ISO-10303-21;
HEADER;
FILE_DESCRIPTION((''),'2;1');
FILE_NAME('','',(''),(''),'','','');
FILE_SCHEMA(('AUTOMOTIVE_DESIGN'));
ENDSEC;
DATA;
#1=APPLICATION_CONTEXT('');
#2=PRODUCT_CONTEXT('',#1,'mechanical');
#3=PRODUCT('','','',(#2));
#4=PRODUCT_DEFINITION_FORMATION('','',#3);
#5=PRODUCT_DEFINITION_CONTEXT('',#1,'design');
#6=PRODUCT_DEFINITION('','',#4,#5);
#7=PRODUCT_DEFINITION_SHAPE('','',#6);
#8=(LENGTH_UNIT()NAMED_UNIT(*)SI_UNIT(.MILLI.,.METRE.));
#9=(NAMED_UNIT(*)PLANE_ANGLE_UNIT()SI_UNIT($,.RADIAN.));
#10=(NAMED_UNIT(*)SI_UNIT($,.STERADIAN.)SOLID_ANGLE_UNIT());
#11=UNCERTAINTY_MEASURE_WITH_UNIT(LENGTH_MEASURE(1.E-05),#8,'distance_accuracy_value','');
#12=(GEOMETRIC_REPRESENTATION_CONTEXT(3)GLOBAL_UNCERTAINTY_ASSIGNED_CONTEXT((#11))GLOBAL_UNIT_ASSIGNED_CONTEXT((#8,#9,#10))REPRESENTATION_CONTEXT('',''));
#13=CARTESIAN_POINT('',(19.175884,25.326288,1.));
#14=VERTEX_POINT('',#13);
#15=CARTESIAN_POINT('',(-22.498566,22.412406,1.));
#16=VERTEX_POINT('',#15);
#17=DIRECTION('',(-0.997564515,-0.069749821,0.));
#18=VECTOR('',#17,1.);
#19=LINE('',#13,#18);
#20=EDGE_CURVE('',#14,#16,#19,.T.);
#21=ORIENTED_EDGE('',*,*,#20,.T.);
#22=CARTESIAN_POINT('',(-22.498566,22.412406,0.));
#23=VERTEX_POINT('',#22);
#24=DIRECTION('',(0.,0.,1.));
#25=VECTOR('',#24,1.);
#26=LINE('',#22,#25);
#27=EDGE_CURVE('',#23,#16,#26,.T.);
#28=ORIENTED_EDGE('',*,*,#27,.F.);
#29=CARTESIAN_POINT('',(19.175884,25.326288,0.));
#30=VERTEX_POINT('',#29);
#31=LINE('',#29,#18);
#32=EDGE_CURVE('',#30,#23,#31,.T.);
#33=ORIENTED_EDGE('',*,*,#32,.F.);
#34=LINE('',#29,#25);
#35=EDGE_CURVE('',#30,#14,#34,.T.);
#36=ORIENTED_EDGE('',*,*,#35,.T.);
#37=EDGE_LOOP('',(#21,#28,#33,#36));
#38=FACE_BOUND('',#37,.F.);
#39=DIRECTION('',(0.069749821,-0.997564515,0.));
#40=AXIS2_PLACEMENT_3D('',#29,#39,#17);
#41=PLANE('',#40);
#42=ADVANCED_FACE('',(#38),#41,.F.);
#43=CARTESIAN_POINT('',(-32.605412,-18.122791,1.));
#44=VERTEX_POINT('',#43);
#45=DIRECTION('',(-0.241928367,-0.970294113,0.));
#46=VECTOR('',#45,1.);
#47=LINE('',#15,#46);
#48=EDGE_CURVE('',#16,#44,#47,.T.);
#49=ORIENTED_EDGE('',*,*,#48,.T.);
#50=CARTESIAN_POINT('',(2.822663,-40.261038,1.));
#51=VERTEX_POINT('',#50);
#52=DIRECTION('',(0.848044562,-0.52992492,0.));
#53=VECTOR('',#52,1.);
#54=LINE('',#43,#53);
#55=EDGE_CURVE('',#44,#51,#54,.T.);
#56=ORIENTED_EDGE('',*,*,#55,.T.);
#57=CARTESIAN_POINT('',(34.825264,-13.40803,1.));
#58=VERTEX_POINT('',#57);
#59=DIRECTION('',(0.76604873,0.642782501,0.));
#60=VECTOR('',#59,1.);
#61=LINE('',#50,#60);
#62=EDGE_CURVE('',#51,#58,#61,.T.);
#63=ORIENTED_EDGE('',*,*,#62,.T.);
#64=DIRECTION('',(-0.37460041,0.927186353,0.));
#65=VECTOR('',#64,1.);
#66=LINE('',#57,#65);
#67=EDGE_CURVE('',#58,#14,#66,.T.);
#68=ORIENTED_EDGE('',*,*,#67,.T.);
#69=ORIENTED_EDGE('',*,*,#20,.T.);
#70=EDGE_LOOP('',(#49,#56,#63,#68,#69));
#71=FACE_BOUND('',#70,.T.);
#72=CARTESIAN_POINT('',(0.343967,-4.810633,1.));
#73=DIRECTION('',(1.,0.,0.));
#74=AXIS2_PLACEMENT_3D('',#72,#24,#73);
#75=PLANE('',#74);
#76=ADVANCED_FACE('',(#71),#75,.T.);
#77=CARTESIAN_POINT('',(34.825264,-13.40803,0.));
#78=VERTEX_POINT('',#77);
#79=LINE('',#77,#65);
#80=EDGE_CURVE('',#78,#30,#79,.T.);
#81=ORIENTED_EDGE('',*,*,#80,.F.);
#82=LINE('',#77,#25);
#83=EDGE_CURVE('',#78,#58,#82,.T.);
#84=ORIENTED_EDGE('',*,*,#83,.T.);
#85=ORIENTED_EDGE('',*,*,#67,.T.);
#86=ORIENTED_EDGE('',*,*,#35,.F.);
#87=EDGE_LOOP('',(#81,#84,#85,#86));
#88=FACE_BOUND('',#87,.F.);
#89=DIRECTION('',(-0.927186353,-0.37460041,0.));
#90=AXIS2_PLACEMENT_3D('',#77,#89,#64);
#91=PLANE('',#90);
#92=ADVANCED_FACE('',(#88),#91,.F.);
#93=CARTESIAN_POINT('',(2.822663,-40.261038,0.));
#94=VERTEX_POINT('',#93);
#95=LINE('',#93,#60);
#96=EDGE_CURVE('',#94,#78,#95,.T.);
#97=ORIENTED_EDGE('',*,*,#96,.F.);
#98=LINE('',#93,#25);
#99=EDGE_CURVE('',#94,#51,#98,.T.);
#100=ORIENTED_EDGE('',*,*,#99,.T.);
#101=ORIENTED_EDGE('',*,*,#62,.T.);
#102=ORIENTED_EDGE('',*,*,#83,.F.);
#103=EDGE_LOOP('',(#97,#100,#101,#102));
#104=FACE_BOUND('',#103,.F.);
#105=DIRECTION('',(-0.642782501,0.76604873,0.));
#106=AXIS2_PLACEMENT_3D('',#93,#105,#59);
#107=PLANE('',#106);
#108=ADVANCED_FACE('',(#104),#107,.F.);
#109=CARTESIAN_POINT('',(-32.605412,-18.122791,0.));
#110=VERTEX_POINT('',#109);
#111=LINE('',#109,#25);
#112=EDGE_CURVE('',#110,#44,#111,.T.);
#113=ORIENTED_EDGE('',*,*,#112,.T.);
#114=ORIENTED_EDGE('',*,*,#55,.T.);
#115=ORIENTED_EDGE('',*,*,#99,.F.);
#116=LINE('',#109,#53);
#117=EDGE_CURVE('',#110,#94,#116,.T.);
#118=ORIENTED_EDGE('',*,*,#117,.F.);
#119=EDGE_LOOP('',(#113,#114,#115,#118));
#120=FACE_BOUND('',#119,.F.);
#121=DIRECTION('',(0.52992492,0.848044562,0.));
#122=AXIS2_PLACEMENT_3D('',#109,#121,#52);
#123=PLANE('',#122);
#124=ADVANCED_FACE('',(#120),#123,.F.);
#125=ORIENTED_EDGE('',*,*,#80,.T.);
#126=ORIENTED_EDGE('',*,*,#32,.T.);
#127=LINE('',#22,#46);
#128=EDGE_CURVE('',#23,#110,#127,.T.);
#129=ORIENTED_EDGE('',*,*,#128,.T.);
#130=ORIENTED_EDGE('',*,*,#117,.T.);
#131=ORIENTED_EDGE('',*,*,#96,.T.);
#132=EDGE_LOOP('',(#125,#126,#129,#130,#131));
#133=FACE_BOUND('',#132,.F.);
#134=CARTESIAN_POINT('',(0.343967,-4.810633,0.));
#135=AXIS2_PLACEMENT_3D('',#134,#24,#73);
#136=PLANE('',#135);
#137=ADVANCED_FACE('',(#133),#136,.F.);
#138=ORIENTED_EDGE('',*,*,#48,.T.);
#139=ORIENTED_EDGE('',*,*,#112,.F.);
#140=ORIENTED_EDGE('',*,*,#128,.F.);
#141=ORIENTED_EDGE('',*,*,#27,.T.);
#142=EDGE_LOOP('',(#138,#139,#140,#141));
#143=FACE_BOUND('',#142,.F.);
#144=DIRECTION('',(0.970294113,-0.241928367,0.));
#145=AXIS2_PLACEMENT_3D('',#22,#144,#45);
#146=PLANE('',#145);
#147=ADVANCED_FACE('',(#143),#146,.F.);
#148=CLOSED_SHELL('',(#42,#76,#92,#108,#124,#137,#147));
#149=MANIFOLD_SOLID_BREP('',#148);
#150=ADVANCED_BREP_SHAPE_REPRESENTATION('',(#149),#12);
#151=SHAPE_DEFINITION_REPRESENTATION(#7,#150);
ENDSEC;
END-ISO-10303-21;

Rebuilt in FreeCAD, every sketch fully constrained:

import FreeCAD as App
import Part
import Sketcher

V = App.Vector
Q = App.Units.Quantity

doc = App.newDocument("Part")
body = doc.addObject("PartDesign::Body", "Body")

# Sketch on XY plane
sketch1 = body.newObject("Sketcher::SketchObject", "Sketch")
sketch1.AttachmentSupport = (doc.getObject("XY_Plane"), [""])
sketch1.MapMode = "FlatFace"
sketch1.addGeometry(Part.LineSegment(V(19.175884, 25.326288, 0), V(-22.498566, 22.412406, 0)), False)
sketch1.addGeometry(Part.LineSegment(V(-22.498566, 22.412406, 0), V(-32.605412, -18.122791, 0)), False)
sketch1.addGeometry(Part.LineSegment(V(-32.605412, -18.122791, 0), V(2.822663, -40.261038, 0)), False)
sketch1.addGeometry(Part.LineSegment(V(2.822663, -40.261038, 0), V(34.825264, -13.40803, 0)), False)
sketch1.addGeometry(Part.LineSegment(V(34.825264, -13.40803, 0), V(19.175884, 25.326288, 0)), False)
sketch1.addConstraint(Sketcher.Constraint("Coincident", 0, 2, 1, 1))
sketch1.addConstraint(Sketcher.Constraint("Coincident", 1, 2, 2, 1))
sketch1.addConstraint(Sketcher.Constraint("Coincident", 2, 2, 3, 1))
sketch1.addConstraint(Sketcher.Constraint("Coincident", 3, 2, 4, 1))
sketch1.addConstraint(Sketcher.Constraint("Coincident", 4, 2, 0, 1))
sketch1.addConstraint(Sketcher.Constraint("Equal", 0, 1))
sketch1.addConstraint(Sketcher.Constraint("Equal", 1, 2))
sketch1.addConstraint(Sketcher.Constraint("Equal", 2, 3))
sketch1.addConstraint(Sketcher.Constraint("Equal", 3, 4))
sketch1.addConstraint(Sketcher.Constraint("DistanceX", 2, 2, 3, 2, Q("32.002601 mm")))
sketch1.addConstraint(Sketcher.Constraint("DistanceY", 1, 2, -1, 1, Q("18.122791 mm")))
sketch1.addConstraint(Sketcher.Constraint("DistanceY", 3, 2, -1, 1, Q("13.40803 mm")))
sketch1.addConstraint(Sketcher.Constraint("DistanceX", 0, 2, 2, 2, Q("25.321229 mm")))
sketch1.addConstraint(Sketcher.Constraint("DistanceX", 0, 2, 4, 2, Q("41.67445 mm")))
sketch1.addConstraint(Sketcher.Constraint("DistanceX", 0, 2, -1, 1, Q("22.498566 mm")))
pad1 = body.newObject("PartDesign::Pad", "Pad")
pad1.Profile = sketch1
pad1.Length = 1

doc.recompute()
